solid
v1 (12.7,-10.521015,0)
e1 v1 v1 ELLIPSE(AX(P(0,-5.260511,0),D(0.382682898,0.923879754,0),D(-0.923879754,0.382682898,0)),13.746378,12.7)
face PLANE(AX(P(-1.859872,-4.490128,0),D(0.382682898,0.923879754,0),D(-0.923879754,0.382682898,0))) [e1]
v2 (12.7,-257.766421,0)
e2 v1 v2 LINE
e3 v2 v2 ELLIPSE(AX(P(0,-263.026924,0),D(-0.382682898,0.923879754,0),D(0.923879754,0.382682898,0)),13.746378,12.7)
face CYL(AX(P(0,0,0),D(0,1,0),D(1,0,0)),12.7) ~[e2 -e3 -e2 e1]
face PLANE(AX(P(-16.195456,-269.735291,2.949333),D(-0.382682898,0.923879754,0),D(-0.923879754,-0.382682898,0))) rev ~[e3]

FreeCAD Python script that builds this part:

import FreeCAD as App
import Part
import Sketcher

V = App.Vector
Q = App.Units.Quantity

doc = App.newDocument("Part")
body = doc.addObject("PartDesign::Body", "Body")

# Sketch on XZ plane
sketch1 = body.newObject("Sketcher::SketchObject", "Sketch")
sketch1.AttachmentSupport = (doc.getObject("XZ_Plane"), [""])
sketch1.MapMode = "FlatFace"
sketch1.addGeometry(Part.Circle(V(0, 0, 0), V(0, 0, 1), 13), False)
sketch1.addConstraint(Sketcher.Constraint("Coincident", 0, 3, -1, 1))
sketch1.addConstraint(Sketcher.Constraint("Diameter", 0, Q("1 in")))
pad1 = body.newObject("PartDesign::Pad", "Pad")
pad1.Profile = sketch1
pad1.Length = Q("10.5625 in")

# Sketch on an angled plane
sketch2 = body.newObject("Sketcher::SketchObject", "Sketch001")
sketch2.Placement = App.Placement(V(92.994083, -224.507577, 0), App.Rotation(V(-0.923879754, -0.382682898, 0), V(0, 0, 1), V(-0.382682898, 0.923879754, 0), "ZXY"))
sketch2.addGeometry(Part.LineSegment(V(61, 47, 0), V(61, -41, 0)), False)
sketch2.addGeometry(Part.LineSegment(V(61, -41, 0), V(175, -41, 0)), False)
sketch2.addGeometry(Part.LineSegment(V(175, -41, 0), V(175, 47, 0)), False)
sketch2.addGeometry(Part.LineSegment(V(175, 47, 0), V(61, 47, 0)), False)
sketch2.addConstraint(Sketcher.Constraint("Coincident", 0, 2, 1, 1))
sketch2.addConstraint(Sketcher.Constraint("Coincident", 1, 2, 2, 1))
sketch2.addConstraint(Sketcher.Constraint("Coincident", 2, 2, 3, 1))
sketch2.addConstraint(Sketcher.Constraint("Coincident", 3, 2, 0, 1))
sketch2.addConstraint(Sketcher.Constraint("Vertical", 0))
sketch2.addConstraint(Sketcher.Constraint("Horizontal", 1))
sketch2.addConstraint(Sketcher.Constraint("Vertical", 2))
sketch2.addConstraint(Sketcher.Constraint("Horizontal", 3))
sketch2.addConstraint(Sketcher.Constraint("DistanceY", 0, 2, 0, 1, Q("88.5094 mm")))
sketch2.addConstraint(Sketcher.Constraint("DistanceX", 1, 1, 1, 2, Q("114.097729 mm")))
sketch2.addConstraint(Sketcher.Constraint("DistanceX", -1, 1, 1, 2, Q("175.234742 mm")))
sketch2.addConstraint(Sketcher.Constraint("DistanceY", 0, 2, -1, 1, Q("41.305367 mm")))
pocket1 = body.newObject("PartDesign::Pocket", "Pocket")
pocket1.Profile = sketch2
pocket1.Length = Q("1 in")

# Sketch on an angled plane
sketch3 = body.newObject("Sketcher::SketchObject", "Sketch002")
sketch3.Placement = App.Placement(V(-1.859872, -4.490128, 0), App.Rotation(V(-0.923879754, 0.382682898, 0), V(0, 0, 1), V(0.382682898, 0.923879754, 0), "ZXY"))
sketch3.addGeometry(Part.LineSegment(V(-73, 41, 0), V(-73, -41, 0)), False)
sketch3.addGeometry(Part.LineSegment(V(-73, -41, 0), V(73, -41, 0)), False)
sketch3.addGeometry(Part.LineSegment(V(73, -41, 0), V(73, 41, 0)), False)
sketch3.addGeometry(Part.LineSegment(V(73, 41, 0), V(-73, 41, 0)), False)
sketch3.addConstraint(Sketcher.Constraint("Coincident", 0, 2, 1, 1))
sketch3.addConstraint(Sketcher.Constraint("Coincident", 1, 2, 2, 1))
sketch3.addConstraint(Sketcher.Constraint("Coincident", 2, 2, 3, 1))
sketch3.addConstraint(Sketcher.Constraint("Coincident", 3, 2, 0, 1))
sketch3.addConstraint(Sketcher.Constraint("Vertical", 0))
sketch3.addConstraint(Sketcher.Constraint("Horizontal", 1))
sketch3.addConstraint(Sketcher.Constraint("Vertical", 2))
sketch3.addConstraint(Sketcher.Constraint("Horizontal", 3))
sketch3.addConstraint(Sketcher.Constraint("Symmetric", 0, 2, 2, 2, -1, 1))
sketch3.addConstraint(Sketcher.Constraint("DistanceX", 1, 1, 1, 2, Q("145.65833 mm")))
sketch3.addConstraint(Sketcher.Constraint("DistanceY", 0, 2, 0, 1, Q("82.475946 mm")))
pocket2 = body.newObject("PartDesign::Pocket", "Pocket001")
pocket2.Profile = sketch3
pocket2.Length = Q("1 in")
pocket2.Reversed = True

doc.recompute()
